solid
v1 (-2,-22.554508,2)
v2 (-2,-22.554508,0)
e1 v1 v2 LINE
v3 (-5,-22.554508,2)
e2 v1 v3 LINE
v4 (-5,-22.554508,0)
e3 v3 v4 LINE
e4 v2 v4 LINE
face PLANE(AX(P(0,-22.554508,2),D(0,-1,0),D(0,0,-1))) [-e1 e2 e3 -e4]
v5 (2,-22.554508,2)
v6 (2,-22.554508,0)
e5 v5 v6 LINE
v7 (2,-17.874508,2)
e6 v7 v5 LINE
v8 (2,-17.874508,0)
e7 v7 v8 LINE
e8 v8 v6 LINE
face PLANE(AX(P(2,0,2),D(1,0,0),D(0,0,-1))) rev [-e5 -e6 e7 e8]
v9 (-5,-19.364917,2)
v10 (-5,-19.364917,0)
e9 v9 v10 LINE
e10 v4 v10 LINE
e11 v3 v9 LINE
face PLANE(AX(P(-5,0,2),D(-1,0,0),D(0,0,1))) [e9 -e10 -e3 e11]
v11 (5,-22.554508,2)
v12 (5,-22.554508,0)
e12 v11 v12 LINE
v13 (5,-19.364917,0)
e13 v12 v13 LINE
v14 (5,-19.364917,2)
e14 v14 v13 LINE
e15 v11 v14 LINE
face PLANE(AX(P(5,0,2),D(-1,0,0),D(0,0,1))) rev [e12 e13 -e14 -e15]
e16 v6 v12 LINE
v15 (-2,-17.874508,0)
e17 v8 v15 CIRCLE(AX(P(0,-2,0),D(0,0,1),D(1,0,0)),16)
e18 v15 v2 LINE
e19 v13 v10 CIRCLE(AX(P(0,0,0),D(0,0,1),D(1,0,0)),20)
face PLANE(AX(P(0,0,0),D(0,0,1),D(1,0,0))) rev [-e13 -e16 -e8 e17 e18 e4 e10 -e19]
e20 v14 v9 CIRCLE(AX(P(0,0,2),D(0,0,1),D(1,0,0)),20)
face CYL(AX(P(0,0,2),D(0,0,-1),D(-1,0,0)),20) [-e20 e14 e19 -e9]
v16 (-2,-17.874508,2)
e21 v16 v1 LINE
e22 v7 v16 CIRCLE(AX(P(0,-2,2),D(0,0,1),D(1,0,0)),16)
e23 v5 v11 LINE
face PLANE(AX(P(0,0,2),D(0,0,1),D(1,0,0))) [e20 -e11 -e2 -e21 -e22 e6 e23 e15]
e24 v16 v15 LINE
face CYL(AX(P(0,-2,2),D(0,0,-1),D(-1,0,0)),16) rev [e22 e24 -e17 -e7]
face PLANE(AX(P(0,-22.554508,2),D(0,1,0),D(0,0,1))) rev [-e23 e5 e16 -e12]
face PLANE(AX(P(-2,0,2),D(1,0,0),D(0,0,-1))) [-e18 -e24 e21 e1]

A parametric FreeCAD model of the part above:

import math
import FreeCAD as App
import Part
import Sketcher

V = App.Vector
Q = App.Units.Quantity

doc = App.newDocument("Part")
body = doc.addObject("PartDesign::Body", "Body")

# Sketch on XY plane
sketch1 = body.newObject("Sketcher::SketchObject", "Sketch")
sketch1.AttachmentSupport = (doc.getObject("XY_Plane"), [""])
sketch1.MapMode = "FlatFace"
sketch1.addGeometry([
    Part.LineSegment(V(5, -22.6, 0), V(5, -19.4, 0)),  # 0
    Part.ArcOfCircle(Part.Circle(V(0, 0, 0), V(0, 0, 1), 20), math.radians(-76), math.radians(256)),  # 1
    Part.LineSegment(V(-5, -19.4, 0), V(-5, -22.6, 0)),  # 2
    Part.LineSegment(V(-5, -22.6, 0), V(-2, -22.6, 0)),  # 3
    Part.LineSegment(V(-2, -22.6, 0), V(-2, -17.9, 0)),  # 4
    Part.ArcOfCircle(Part.Circle(V(0, -2, 0), V(0, 0, 1), 16), math.radians(-83), math.radians(263)),  # 5
    Part.LineSegment(V(2, -17.9, 0), V(2, -22.6, 0)),  # 6
    Part.LineSegment(V(2, -22.6, 0), V(5, -22.6, 0)),  # 7
], False)
sketch1.addConstraint([
    Sketcher.Constraint("Coincident", 0, 2, 1, 1),
    Sketcher.Constraint("Coincident", 1, 2, 2, 1),
    Sketcher.Constraint("Coincident", 2, 2, 3, 1),
    Sketcher.Constraint("Coincident", 3, 2, 4, 1),
    Sketcher.Constraint("Coincident", 4, 2, 5, 2),
    Sketcher.Constraint("Coincident", 5, 1, 6, 1),
    Sketcher.Constraint("Coincident", 6, 2, 7, 1),
    Sketcher.Constraint("Coincident", 7, 2, 0, 1),
    Sketcher.Constraint("Vertical", 0),
    Sketcher.Constraint("Vertical", 2),
    Sketcher.Constraint("Horizontal", 3),
    Sketcher.Constraint("Vertical", 4),
    Sketcher.Constraint("Vertical", 6),
    Sketcher.Constraint("Horizontal", 7),
    Sketcher.Constraint("Coincident", 1, 3, -1, 1),
    Sketcher.Constraint("Symmetric", 4, 2, 5, 1, -2),
    Sketcher.Constraint("Symmetric", 2, 2, 7, 2, -2),
    Sketcher.Constraint("Radius", 1, Q("20 mm")),
    Sketcher.Constraint("Radius", 5, Q("16 mm")),
    Sketcher.Constraint("DistanceX", 3, 1, 3, 2, Q("3 mm")),
    Sketcher.Constraint("DistanceY", 5, 3, -1, 1, Q("2 mm")),
    Sketcher.Constraint("DistanceX", -1, 1, 0, 2, Q("5 mm")),
    Sketcher.Constraint("DistanceY", 4, 1, 4, 2, Q("4.68 mm")),
])
pad1 = body.newObject("PartDesign::Pad", "Pad")
pad1.Profile = sketch1
pad1.Length = 2

doc.recompute()
